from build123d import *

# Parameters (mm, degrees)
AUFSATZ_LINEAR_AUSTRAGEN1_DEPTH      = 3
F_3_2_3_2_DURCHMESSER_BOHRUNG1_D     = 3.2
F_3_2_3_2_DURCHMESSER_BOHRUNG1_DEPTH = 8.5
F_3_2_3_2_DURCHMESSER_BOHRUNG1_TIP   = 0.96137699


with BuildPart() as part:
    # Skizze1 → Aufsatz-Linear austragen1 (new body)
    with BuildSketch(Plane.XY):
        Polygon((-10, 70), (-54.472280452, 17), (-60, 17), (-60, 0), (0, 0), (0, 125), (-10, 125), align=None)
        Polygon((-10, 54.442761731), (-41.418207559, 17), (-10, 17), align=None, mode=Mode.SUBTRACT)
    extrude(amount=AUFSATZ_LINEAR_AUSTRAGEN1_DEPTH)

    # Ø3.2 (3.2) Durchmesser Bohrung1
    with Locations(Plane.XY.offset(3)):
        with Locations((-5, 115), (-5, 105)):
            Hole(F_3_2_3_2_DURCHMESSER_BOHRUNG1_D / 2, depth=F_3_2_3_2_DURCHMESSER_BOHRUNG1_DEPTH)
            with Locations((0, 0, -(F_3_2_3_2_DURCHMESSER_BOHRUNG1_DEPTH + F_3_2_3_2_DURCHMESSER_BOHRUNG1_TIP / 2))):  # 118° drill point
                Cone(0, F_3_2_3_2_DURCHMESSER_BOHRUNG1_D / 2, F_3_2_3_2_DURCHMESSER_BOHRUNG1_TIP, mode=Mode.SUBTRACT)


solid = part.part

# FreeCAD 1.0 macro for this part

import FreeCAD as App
import Part
import Sketcher
Q = App.Units.Quantity


def add_polygon(sketch, points):
    """Adds a closed chain of lines whose ends are joined by coincident constraints."""
    first, n = sketch.GeometryCount, len(points)
    for a, b in zip(points, points[1:] + points[:1]):
        sketch.addGeometry(Part.LineSegment(App.Vector(*a, 0), App.Vector(*b, 0)), False)
    for i in range(n):
        sketch.addConstraint(Sketcher.Constraint("Coincident", first + i, 2, first + (i + 1) % n, 1))

doc = App.newDocument("Part")
params = doc.addObject("Spreadsheet::Sheet", "Params")
for row, (alias, value) in enumerate([
    ("sketch1_width", "60 mm"),
    ("sketch1_width2", "10 mm"),
    ("sketch1_height", "17 mm"),
    ("sketch1_height2", "125 mm"),
    ("sketch1_height3", "55 mm"),
    ("pad1_length", "3 mm"),
    ("sketch2_diameter", "3.2 mm"),
    ("hole_diameter", "3.2 mm"),
    ("hole_depth", "8.5 mm"),
], start=1):
    params.set(f"A{row}", alias)
    params.set(f"B{row}", "=" + value)
    params.setAlias(f"B{row}", alias)

body = doc.addObject("PartDesign::Body", "Body")

# Sketch on XY plane
sketch1 = doc.addObject("Sketcher::SketchObject", "Sketch")
body.addObject(sketch1)
sketch1.AttachmentSupport = (doc.XY_Plane, [""])
sketch1.MapMode = "FlatFace"
add_polygon(sketch1, [(-10, 70), (-54, 17), (-60, 17), (-60, 0), (0, 0), (0, 125), (-10, 125)])  # lines 0-6
add_polygon(sketch1, [(-41, 17), (-10, 54), (-10, 17)])  # lines 7-9
sketch1.addConstraint([
    Sketcher.Constraint("Horizontal", 1),
    Sketcher.Constraint("Vertical", 2),
    Sketcher.Constraint("Horizontal", 3),
    Sketcher.Constraint("Vertical", 4),
    Sketcher.Constraint("Horizontal", 5),
    Sketcher.Constraint("Vertical", 6),
    Sketcher.Constraint("Vertical", 8),
    Sketcher.Constraint("Horizontal", 9),
    Sketcher.Constraint("Coincident", 3, 2, -1, 1),
    Sketcher.Constraint("Parallel", 0, 7),
    Sketcher.Constraint("Horizontal", 1, 2, 8, 2),
    Sketcher.Constraint("Vertical", 6, 2, 7, 2),
    Sketcher.Constraint("DistanceX", 3, 1, 3, 2, 60.0),
    Sketcher.Constraint("DistanceX", 5, 2, 5, 1, 10.0),
    Sketcher.Constraint("DistanceY", 2, 2, 2, 1, 17.0),
    Sketcher.Constraint("DistanceY", 4, 1, 4, 2, 125.0),
    Sketcher.Constraint("DistanceY", 6, 2, 6, 1, 55.0),
    Sketcher.Constraint("Angle", 0, Q("-130 deg")),
    Sketcher.Constraint("DistanceY", 8, 2, 8, 1, 37.442762),
])
sketch1.setExpression("Constraints[22]", "Params.sketch1_width")
sketch1.setExpression("Constraints[23]", "Params.sketch1_width2")
sketch1.setExpression("Constraints[24]", "Params.sketch1_height")
sketch1.setExpression("Constraints[25]", "Params.sketch1_height2")
sketch1.setExpression("Constraints[26]", "Params.sketch1_height3")
pad1 = doc.addObject("PartDesign::Pad", "Pad")
body.addObject(pad1)
pad1.Profile = sketch1
pad1.setExpression("Length", "Params.pad1_length")

# Sketch on XY plane
sketch2 = doc.addObject("Sketcher::SketchObject", "Sketch001")
body.addObject(sketch2)
sketch2.AttachmentSupport = (doc.XY_Plane, [""])
sketch2.MapMode = "FlatFace"
sketch2.AttachmentOffset = App.Placement(App.Vector(0, 0, 3), App.Rotation())
sketch2.addGeometry([
    Part.Circle(App.Vector(-5, 115, 0), App.Vector(0, 0, 1), 1.6),
    Part.Circle(App.Vector(-5, 105, 0), App.Vector(0, 0, 1), 1.6),
], False)
sketch2.addConstraint([
    Sketcher.Constraint("Equal", 0, 1),
    Sketcher.Constraint("Vertical", 0, 3, 1, 3),
    Sketcher.Constraint("Diameter", 0, 3.2),
    Sketcher.Constraint("DistanceX", 0, 3, -1, 1, 5.0),
    Sketcher.Constraint("DistanceY", -1, 1, 0, 3, 115.0),
    Sketcher.Constraint("DistanceY", -1, 1, 1, 3, 105.0),
])
sketch2.setExpression("Constraints[2]", "Params.sketch2_diameter")
doc.recompute()
hole = doc.addObject("PartDesign::Hole", "Hole")
body.addObject(hole)
hole.Profile = sketch2
hole.ThreadType = "None"
hole.setExpression("Diameter", "Params.hole_diameter")
hole.DepthType = "Dimension"
hole.setExpression("Depth", "Params.hole_depth")
hole.DrillPoint = "Angled"
hole.DrillPointAngle = 118

doc.recompute()
